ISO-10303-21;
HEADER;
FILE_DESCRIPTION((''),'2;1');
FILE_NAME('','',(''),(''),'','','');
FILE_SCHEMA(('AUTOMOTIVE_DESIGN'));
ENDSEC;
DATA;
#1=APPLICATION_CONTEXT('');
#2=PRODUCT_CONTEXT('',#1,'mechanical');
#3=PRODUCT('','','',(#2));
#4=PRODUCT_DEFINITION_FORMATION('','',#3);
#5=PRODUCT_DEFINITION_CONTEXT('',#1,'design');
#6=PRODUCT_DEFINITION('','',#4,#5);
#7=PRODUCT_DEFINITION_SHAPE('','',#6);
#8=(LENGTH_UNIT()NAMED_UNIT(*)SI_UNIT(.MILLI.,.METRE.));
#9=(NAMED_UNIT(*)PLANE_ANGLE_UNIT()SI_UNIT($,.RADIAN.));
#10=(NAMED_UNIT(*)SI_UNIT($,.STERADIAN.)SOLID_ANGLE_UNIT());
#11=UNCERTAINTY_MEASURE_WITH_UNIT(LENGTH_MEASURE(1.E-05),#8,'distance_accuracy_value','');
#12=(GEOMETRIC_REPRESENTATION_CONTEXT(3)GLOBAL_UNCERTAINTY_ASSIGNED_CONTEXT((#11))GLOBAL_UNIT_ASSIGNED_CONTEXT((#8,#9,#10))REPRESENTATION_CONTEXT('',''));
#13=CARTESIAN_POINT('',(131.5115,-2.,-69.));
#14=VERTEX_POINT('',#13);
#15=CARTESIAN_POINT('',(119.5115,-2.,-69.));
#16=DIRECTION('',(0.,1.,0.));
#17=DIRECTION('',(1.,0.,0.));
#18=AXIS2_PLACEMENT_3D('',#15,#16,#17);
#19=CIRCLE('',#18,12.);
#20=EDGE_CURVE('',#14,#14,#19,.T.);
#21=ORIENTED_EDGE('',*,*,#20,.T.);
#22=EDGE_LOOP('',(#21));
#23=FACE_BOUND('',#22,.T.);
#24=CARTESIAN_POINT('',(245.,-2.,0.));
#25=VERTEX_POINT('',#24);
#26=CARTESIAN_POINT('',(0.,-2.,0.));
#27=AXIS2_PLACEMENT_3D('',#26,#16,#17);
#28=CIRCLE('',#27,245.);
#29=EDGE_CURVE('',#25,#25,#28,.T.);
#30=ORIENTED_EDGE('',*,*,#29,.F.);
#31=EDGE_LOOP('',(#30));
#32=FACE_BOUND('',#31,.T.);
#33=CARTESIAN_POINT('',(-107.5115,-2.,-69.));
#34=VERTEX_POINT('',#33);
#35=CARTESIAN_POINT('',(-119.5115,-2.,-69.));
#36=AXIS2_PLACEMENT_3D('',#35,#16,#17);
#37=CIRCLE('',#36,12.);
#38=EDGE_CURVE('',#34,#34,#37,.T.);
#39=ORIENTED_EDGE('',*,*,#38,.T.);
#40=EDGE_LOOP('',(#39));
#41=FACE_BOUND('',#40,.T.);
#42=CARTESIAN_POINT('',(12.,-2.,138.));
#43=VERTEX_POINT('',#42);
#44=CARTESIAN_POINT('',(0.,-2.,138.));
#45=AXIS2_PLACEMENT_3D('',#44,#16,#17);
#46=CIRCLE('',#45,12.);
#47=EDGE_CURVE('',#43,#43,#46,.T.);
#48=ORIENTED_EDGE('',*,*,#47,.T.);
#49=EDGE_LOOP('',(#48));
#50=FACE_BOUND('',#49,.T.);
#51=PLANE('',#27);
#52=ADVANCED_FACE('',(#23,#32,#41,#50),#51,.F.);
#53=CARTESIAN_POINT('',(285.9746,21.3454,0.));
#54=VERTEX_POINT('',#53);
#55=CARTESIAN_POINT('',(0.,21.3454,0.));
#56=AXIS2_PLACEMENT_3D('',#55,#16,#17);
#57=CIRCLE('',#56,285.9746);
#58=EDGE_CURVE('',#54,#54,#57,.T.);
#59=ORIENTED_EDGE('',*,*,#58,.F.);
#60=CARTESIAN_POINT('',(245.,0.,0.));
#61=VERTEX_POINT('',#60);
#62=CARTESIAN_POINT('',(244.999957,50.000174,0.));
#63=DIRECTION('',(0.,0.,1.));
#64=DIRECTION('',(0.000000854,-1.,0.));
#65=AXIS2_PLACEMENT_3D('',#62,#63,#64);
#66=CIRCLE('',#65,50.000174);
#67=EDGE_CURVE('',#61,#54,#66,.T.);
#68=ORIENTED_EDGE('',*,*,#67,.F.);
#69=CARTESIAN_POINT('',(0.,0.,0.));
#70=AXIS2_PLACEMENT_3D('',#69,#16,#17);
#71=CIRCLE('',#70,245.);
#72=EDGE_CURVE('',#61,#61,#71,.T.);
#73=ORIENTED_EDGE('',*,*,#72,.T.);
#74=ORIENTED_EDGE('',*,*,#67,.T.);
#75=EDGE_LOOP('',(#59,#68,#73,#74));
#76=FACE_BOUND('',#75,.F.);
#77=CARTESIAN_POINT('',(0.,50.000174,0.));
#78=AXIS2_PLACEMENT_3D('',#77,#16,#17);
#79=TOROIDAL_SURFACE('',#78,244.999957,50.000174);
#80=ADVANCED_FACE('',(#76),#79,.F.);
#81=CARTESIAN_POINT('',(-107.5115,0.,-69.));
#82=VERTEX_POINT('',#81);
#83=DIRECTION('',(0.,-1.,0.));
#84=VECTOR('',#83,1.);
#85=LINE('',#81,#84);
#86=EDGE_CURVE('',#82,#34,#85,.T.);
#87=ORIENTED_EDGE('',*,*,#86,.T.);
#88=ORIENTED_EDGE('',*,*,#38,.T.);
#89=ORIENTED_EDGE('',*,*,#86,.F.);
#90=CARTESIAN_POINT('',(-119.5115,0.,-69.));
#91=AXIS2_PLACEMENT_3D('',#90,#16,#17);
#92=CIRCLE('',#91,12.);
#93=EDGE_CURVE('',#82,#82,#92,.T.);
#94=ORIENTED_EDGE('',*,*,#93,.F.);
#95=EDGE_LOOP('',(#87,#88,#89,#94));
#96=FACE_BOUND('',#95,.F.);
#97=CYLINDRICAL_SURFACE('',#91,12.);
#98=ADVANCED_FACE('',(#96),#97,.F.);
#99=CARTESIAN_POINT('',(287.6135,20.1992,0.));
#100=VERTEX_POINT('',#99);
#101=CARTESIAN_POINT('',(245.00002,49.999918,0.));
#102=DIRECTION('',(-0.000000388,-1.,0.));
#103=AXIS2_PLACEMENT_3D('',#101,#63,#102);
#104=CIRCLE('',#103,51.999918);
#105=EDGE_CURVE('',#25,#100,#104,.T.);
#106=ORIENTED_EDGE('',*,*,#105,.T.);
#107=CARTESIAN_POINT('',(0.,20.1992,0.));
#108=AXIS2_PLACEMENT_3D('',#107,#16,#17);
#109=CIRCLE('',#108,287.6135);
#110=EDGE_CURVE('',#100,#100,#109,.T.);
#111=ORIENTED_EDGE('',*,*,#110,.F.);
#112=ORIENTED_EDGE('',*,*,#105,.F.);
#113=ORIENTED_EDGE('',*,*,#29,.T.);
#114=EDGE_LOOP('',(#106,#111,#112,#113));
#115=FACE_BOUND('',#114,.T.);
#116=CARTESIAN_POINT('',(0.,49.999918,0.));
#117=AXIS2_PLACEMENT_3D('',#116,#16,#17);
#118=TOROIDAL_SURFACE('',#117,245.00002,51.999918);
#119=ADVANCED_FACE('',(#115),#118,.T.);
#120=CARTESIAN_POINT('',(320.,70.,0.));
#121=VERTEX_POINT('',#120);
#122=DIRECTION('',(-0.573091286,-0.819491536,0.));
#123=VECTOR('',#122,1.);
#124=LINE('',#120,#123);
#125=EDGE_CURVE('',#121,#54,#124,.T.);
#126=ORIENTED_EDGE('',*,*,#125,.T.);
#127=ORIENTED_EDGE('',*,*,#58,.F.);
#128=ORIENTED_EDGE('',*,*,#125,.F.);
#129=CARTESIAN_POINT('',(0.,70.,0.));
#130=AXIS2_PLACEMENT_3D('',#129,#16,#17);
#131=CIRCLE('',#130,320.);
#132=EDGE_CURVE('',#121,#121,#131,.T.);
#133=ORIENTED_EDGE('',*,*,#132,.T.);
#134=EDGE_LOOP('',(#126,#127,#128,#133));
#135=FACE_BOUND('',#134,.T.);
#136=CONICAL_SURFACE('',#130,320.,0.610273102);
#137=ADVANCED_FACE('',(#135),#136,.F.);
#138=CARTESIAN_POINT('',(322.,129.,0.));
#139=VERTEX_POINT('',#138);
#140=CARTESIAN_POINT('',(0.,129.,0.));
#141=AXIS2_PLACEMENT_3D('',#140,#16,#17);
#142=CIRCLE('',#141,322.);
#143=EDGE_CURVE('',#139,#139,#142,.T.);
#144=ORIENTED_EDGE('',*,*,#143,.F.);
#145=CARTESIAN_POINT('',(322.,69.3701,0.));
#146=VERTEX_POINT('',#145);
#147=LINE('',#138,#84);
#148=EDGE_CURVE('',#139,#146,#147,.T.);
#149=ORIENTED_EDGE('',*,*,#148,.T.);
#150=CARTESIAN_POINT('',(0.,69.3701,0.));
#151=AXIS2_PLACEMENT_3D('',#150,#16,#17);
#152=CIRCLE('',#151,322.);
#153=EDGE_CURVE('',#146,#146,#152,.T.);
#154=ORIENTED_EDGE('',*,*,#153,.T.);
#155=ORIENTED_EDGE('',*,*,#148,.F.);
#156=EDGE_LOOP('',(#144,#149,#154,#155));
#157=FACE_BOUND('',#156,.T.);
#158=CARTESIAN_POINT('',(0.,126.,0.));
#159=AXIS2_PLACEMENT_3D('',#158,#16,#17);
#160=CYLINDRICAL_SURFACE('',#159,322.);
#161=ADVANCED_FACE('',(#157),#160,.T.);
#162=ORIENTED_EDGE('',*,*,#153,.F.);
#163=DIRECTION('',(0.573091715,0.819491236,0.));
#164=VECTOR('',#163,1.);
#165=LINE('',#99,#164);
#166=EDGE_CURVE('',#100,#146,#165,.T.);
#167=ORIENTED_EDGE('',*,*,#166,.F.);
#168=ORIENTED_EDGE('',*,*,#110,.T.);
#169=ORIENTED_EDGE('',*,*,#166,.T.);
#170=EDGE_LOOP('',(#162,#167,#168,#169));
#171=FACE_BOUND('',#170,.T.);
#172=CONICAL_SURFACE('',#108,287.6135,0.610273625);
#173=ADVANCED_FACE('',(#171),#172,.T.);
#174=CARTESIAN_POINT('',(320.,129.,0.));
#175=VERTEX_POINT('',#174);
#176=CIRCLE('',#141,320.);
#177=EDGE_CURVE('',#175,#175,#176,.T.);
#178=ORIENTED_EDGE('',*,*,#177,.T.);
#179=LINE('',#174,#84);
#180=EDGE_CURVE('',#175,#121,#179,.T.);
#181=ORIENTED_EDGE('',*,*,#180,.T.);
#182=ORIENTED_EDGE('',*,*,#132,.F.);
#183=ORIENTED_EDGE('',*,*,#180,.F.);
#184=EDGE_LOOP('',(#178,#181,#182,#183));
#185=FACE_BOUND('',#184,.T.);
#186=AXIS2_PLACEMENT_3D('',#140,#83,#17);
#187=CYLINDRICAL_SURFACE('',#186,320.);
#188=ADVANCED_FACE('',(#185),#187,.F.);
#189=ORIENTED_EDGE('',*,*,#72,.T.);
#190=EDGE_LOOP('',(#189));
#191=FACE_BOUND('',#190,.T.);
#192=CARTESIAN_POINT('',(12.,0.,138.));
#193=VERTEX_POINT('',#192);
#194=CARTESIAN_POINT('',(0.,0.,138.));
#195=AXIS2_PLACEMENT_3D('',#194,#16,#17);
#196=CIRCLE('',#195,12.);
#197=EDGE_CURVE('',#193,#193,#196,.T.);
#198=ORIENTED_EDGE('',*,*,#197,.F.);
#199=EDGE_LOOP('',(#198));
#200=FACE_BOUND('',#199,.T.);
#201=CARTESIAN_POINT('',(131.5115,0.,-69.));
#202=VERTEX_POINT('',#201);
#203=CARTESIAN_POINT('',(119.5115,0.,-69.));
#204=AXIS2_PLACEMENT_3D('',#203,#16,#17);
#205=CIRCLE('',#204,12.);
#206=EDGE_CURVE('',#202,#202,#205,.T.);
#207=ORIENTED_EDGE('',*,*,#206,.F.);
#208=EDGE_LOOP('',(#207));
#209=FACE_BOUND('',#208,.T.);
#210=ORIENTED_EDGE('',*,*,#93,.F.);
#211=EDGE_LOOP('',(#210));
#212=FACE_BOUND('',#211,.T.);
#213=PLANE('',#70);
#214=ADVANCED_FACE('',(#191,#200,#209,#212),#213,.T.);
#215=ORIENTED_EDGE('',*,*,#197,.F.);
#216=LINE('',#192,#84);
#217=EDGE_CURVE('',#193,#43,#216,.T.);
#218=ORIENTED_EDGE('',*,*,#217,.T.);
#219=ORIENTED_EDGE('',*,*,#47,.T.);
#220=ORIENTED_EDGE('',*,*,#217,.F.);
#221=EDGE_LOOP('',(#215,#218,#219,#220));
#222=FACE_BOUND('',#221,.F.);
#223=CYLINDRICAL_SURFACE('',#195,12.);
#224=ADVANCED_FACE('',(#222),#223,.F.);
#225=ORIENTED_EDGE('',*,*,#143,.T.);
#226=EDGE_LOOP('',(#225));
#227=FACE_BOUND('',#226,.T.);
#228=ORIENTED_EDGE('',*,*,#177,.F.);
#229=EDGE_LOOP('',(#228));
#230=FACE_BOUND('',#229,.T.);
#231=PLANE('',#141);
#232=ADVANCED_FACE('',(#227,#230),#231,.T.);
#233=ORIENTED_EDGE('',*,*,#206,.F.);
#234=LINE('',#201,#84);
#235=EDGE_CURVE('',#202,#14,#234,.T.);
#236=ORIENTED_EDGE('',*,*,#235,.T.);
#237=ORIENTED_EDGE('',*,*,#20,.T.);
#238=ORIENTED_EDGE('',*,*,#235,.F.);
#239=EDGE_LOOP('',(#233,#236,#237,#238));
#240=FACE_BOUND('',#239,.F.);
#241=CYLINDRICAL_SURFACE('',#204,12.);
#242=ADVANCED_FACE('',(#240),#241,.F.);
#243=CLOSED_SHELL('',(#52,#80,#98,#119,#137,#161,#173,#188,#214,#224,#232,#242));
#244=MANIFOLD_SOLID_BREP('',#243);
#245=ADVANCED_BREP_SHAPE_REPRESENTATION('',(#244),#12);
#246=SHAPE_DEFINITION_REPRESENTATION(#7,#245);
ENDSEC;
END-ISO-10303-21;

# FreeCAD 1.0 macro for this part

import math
import FreeCAD as App
import Part
import Sketcher

V = App.Vector
Q = App.Units.Quantity

doc = App.newDocument("Part")
params = doc.addObject("Spreadsheet::Sheet", "Params")
for row, (alias, value) in enumerate([
    ("sketch1_width", "2 mm"),
    ("sketch1_radius", "50 mm"),
    ("sketch1_width2", "245 mm"),
    ("sketch1_height", "59 mm"),
    ("revolution_angle", "360 deg"),
    ("sketch2_diameter", "24 mm"),
], start=1):
    params.set(f"A{row}", alias)
    params.set(f"B{row}", "=" + value)
    params.setAlias(f"B{row}", alias)

body = doc.addObject("PartDesign::Body", "Body")

# Sketch on XY plane
sketch1 = doc.addObject("Sketcher::SketchObject", "Sketch")
body.addObject(sketch1)
sketch1.AttachmentSupport = (doc.XY_Plane, [""])
sketch1.MapMode = "FlatFace"
sketch1.addGeometry(Part.LineSegment(V(320, 129, 0), V(320, 70, 0)), False)
sketch1.addGeometry(Part.LineSegment(V(320, 70, 0), V(285.9746, 21.3454, 0)), False)
sketch1.addGeometry(Part.ArcOfCircle(Part.Circle(V(245, 50, 0), V(0, 0, 1), 50), math.radians(-90), math.radians(-34.966091)), False)
sketch1.addGeometry(Part.LineSegment(V(245, 0, 0), V(0, 0, 0)), False)
sketch1.addGeometry(Part.LineSegment(V(0, 0, 0), V(0, -2, 0)), False)
sketch1.addGeometry(Part.LineSegment(V(0, -2, 0), V(245, -2, 0)), False)
sketch1.addGeometry(Part.ArcOfCircle(Part.Circle(V(245, 50, 0), V(0, 0, 1), 52), math.radians(-90), math.radians(-34.966159)), False)
sketch1.addGeometry(Part.LineSegment(V(287.6135, 20.1992, 0), V(322, 69.3701, 0)), False)
sketch1.addGeometry(Part.LineSegment(V(322, 69.3701, 0), V(322, 129, 0)), False)
sketch1.addGeometry(Part.LineSegment(V(322, 129, 0), V(320, 129, 0)), False)
sketch1.addConstraint(Sketcher.Constraint("Coincident", 0, 2, 1, 1))
sketch1.addConstraint(Sketcher.Constraint("Tangent", 1, 2, 2, 2))
sketch1.addConstraint(Sketcher.Constraint("Tangent", 2, 1, 3, 1))
sketch1.addConstraint(Sketcher.Constraint("Coincident", 3, 2, 4, 1))
sketch1.addConstraint(Sketcher.Constraint("Coincident", 4, 2, 5, 1))
sketch1.addConstraint(Sketcher.Constraint("Tangent", 5, 2, 6, 1))
sketch1.addConstraint(Sketcher.Constraint("Tangent", 6, 2, 7, 1))
sketch1.addConstraint(Sketcher.Constraint("Coincident", 7, 2, 8, 1))
sketch1.addConstraint(Sketcher.Constraint("Coincident", 8, 2, 9, 1))
sketch1.addConstraint(Sketcher.Constraint("Coincident", 9, 2, 0, 1))
sketch1.addConstraint(Sketcher.Constraint("Vertical", 0))
sketch1.addConstraint(Sketcher.Constraint("Horizontal", 3))
sketch1.addConstraint(Sketcher.Constraint("Vertical", 4))
sketch1.addConstraint(Sketcher.Constraint("Horizontal", 5))
sketch1.addConstraint(Sketcher.Constraint("Vertical", 8))
sketch1.addConstraint(Sketcher.Constraint("Horizontal", 9))
sketch1.addConstraint(Sketcher.Constraint("Coincident", 3, 2, -1, 1))
sketch1.addConstraint(Sketcher.Constraint("Coincident", 6, 3, 2, 3))
sketch1.addConstraint(Sketcher.Constraint("Parallel", 1, 7))
sketch1.addConstraint(Sketcher.Constraint("Equal", 9, 4))
sketch1.addConstraint(Sketcher.Constraint("DistanceX", 9, 2, 9, 1, Q("2 mm")))
sketch1.addConstraint(Sketcher.Constraint("Radius", 2, Q("50 mm")))
sketch1.addConstraint(Sketcher.Constraint("DistanceX", 3, 2, 3, 1, Q("245 mm")))
sketch1.addConstraint(Sketcher.Constraint("DistanceY", 0, 2, 0, 1, Q("59 mm")))
sketch1.addConstraint(Sketcher.Constraint("DistanceX", -1, 1, 0, 2, Q("320 mm")))
sketch1.addConstraint(Sketcher.Constraint("DistanceY", -1, 1, 0, 2, Q("70 mm")))
sketch1.setExpression("Constraints[20]", "Params.sketch1_width")
sketch1.setExpression("Constraints[21]", "Params.sketch1_radius")
sketch1.setExpression("Constraints[22]", "Params.sketch1_width2")
sketch1.setExpression("Constraints[23]", "Params.sketch1_height")
revolution = doc.addObject("PartDesign::Revolution", "Revolution")
body.addObject(revolution)
revolution.Profile = sketch1
revolution.ReferenceAxis = (sketch1, ["V_Axis"])
revolution.setExpression("Angle", "Params.revolution_angle")

# Sketch on XZ plane
sketch2 = doc.addObject("Sketcher::SketchObject", "Sketch001")
body.addObject(sketch2)
sketch2.AttachmentSupport = (doc.XZ_Plane, [""])
sketch2.MapMode = "FlatFace"
sketch2.addGeometry(Part.Circle(V(0, 138, 0), V(0, 0, 1), 12), False)
sketch2.addGeometry(Part.Circle(V(119.5115, -69, 0), V(0, 0, 1), 12), False)
sketch2.addGeometry(Part.Circle(V(-119.5115, -69, 0), V(0, 0, 1), 12), False)
sketch2.addConstraint(Sketcher.Constraint("Equal", 0, 1))
sketch2.addConstraint(Sketcher.Constraint("Equal", 1, 2))
sketch2.addConstraint(Sketcher.Constraint("Symmetric", 1, 3, 2, 3, -2))
sketch2.addConstraint(Sketcher.Constraint("PointOnObject", 0, 3, -2))
sketch2.addConstraint(Sketcher.Constraint("Diameter", 0, Q("24 mm")))
sketch2.addConstraint(Sketcher.Constraint("DistanceY", -1, 1, 0, 3, Q("138 mm")))
sketch2.addConstraint(Sketcher.Constraint("DistanceY", 1, 3, -1, 1, Q("69 mm")))
sketch2.addConstraint(Sketcher.Constraint("DistanceX", 2, 3, 1, 3, Q("239.023 mm")))
sketch2.setExpression("Constraints[4]", "Params.sketch2_diameter")
pocket1 = doc.addObject("PartDesign::Pocket", "Pocket")
body.addObject(pocket1)
pocket1.Profile = sketch2
pocket1.Type = "ThroughAll"
pocket1.Reversed = True

doc.recompute()
